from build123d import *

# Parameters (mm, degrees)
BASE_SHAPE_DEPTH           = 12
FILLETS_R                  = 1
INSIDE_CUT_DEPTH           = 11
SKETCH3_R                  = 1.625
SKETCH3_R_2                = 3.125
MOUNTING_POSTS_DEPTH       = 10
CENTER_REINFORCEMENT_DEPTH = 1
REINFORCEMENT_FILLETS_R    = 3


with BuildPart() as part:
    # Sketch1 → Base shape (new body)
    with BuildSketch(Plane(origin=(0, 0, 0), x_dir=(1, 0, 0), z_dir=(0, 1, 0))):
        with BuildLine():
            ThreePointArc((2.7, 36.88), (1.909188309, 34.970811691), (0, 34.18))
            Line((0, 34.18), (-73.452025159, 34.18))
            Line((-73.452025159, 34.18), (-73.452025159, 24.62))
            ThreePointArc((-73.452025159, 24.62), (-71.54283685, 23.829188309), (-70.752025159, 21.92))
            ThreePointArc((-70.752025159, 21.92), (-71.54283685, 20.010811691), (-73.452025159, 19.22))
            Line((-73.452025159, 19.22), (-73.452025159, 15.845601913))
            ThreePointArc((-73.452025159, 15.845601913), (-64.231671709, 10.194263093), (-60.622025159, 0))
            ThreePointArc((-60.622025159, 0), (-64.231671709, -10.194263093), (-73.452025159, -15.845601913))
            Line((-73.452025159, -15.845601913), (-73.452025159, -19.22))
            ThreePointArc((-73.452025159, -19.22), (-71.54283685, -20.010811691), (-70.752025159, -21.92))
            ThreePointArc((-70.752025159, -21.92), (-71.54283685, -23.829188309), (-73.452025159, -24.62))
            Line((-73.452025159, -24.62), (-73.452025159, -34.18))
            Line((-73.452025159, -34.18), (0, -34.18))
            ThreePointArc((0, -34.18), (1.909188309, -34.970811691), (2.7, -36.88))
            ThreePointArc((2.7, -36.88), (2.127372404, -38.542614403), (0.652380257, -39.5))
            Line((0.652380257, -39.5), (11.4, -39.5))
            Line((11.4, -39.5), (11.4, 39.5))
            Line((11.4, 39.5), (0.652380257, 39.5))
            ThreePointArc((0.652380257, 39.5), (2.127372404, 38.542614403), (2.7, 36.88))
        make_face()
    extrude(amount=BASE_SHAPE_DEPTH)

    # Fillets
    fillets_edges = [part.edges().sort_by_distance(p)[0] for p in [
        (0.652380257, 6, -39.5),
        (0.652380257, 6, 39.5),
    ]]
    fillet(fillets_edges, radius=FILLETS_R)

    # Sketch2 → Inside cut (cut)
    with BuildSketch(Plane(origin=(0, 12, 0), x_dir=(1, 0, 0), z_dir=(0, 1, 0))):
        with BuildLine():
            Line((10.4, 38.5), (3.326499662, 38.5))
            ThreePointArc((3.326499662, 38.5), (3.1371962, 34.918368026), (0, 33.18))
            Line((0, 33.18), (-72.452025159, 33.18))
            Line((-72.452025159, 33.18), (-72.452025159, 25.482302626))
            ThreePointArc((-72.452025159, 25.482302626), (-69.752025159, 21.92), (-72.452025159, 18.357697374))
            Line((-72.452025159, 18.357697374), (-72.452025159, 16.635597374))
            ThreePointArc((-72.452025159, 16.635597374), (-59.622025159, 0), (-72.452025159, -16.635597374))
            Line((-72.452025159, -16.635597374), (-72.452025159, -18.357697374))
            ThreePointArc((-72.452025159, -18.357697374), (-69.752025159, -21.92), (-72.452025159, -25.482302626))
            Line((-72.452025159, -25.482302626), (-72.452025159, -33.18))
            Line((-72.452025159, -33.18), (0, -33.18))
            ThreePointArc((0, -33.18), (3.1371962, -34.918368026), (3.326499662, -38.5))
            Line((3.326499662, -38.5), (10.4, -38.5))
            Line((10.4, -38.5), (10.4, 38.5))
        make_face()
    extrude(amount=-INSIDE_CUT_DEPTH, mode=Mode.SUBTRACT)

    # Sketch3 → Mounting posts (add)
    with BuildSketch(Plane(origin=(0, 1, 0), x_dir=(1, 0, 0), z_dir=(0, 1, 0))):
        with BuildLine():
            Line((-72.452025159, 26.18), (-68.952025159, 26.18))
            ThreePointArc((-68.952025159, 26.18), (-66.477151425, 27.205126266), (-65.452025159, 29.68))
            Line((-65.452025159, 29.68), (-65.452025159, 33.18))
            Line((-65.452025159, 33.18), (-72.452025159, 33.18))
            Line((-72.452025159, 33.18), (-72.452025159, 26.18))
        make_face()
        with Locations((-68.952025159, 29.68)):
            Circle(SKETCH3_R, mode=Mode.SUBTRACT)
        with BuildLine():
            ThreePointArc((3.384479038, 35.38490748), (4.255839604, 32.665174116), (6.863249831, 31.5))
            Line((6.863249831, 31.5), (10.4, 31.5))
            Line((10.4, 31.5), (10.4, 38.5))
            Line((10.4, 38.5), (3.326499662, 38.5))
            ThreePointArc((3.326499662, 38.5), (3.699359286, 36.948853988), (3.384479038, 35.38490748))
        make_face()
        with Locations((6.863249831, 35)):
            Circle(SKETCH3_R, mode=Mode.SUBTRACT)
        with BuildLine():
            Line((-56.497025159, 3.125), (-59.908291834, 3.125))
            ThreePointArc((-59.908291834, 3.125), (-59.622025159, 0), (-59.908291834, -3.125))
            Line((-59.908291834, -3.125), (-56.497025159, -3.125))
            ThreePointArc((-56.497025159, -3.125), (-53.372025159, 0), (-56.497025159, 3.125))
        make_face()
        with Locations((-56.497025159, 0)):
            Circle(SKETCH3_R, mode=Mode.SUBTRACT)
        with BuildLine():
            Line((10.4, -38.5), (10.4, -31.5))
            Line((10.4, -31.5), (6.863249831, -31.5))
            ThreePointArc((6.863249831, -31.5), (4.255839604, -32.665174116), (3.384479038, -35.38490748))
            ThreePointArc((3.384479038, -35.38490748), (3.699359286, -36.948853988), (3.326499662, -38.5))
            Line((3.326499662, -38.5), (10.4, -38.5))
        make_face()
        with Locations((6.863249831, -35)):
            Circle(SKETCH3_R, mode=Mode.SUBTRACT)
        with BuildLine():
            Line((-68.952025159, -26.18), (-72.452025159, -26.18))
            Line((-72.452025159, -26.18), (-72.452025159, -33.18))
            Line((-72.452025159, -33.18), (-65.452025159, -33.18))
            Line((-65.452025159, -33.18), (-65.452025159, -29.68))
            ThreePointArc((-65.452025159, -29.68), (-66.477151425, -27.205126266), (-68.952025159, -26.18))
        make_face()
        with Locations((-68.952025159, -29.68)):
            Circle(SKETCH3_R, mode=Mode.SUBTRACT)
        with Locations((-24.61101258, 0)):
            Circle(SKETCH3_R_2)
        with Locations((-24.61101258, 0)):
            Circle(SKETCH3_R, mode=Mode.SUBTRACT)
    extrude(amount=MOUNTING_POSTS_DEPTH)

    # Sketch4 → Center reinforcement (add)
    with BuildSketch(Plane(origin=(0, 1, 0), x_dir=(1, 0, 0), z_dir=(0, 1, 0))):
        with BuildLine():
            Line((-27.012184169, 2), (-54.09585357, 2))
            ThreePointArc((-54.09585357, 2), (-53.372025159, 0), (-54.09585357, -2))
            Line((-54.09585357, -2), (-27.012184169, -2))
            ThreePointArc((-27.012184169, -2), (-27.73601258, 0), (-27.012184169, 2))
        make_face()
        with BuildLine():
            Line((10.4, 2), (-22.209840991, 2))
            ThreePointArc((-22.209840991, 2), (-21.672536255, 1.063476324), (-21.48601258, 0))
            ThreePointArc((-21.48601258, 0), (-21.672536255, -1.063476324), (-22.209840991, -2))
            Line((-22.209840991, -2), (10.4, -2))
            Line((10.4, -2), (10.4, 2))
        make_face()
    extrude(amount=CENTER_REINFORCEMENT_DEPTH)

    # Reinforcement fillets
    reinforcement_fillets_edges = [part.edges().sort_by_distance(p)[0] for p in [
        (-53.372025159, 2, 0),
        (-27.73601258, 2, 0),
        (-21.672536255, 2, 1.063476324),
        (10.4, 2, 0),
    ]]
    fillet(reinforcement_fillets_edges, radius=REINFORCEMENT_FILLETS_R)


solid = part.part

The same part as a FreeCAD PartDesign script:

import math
import FreeCAD as App
import Part
import Sketcher
from FreeCAD import Vector


def edges_at(feature, points):
    """Names of the edges that pass closest to the given points."""
    edges = feature.Shape.Edges
    near = lambda p: min(range(len(edges)), key=lambda i: edges[i].distToShape(Part.Vertex(*p))[0])
    return sorted({f"Edge{near(p) + 1}" for p in points})

doc = App.newDocument("Part")
params = doc.addObject("Spreadsheet::Sheet", "Params")
for row, (alias, value) in enumerate([
    ("sketch1_radius", "2.7 mm"),
    ("sketch1_radius2", "16.2 mm"),
    ("sketch1_height", "79 mm"),
    ("sketch1_height2", "9.56 mm"),
    ("pad1_length", "12 mm"),
    ("fillet_radius", "1 mm"),
    ("sketch2_radius", "3.7 mm"),
    ("sketch2_radius2", "17.2 mm"),
    ("sketch2_height", "77 mm"),
    ("pocket1_length", "11 mm"),
    ("sketch3_radius", "3.5 mm"),
    ("sketch3_radius2", "3.7 mm"),
    ("sketch3_radius3", "17.2 mm"),
    ("sketch3_diameter", "3.25 mm"),
    ("sketch3_diameter2", "6.25 mm"),
    ("pad2_length", "10 mm"),
    ("sketch4_height", "4 mm"),
    ("pad3_length", "1 mm"),
    ("fillet2_radius", "3 mm"),
], start=1):
    params.set(f"A{row}", alias)
    params.set(f"B{row}", "=" + value)
    params.setAlias(f"B{row}", alias)

body = doc.addObject("PartDesign::Body", "Body")

sketch1 = body.newObject("Sketcher::SketchObject", "Sketch")
sketch1.AttachmentSupport = (doc.getObject("XZ_Plane"), [""])
sketch1.MapMode = "FlatFace"
sketch1.addGeometry(Part.ArcOfCircle(Part.Circle(Vector(0, -36.9, 0), Vector(0, 0, 1), 2.7), math.radians(0), math.radians(90)), False)
sketch1.addGeometry(Part.LineSegment(Vector(0, -34.2, 0), Vector(-73.5, -34.2, 0)), False)
sketch1.addGeometry(Part.LineSegment(Vector(-73.5, -34.2, 0), Vector(-73.5, -24.6, 0)), False)
sketch1.addGeometry(Part.ArcOfCircle(Part.Circle(Vector(-73.5, -21.9, 0), Vector(0, 0, 1), 2.7), math.radians(-90), math.radians(0)), False)
sketch1.addGeometry(Part.ArcOfCircle(Part.Circle(Vector(-73.5, -21.9, 0), Vector(0, 0, 1), 2.7), math.radians(0), math.radians(90)), False)
sketch1.addGeometry(Part.LineSegment(Vector(-73.5, -19.2, 0), Vector(-73.5, -15.8, 0)), False)
sketch1.addGeometry(Part.ArcOfCircle(Part.Circle(Vector(-76.8, 0, 0), Vector(0, 0, 1), 16.2), math.radians(-78), math.radians(0)), False)
sketch1.addGeometry(Part.ArcOfCircle(Part.Circle(Vector(-76.8, 0, 0), Vector(0, 0, 1), 16.2), math.radians(0), math.radians(78)), False)
sketch1.addGeometry(Part.LineSegment(Vector(-73.5, 15.8, 0), Vector(-73.5, 19.2, 0)), False)
sketch1.addGeometry(Part.ArcOfCircle(Part.Circle(Vector(-73.5, 21.9, 0), Vector(0, 0, 1), 2.7), math.radians(-90), math.radians(0)), False)
sketch1.addGeometry(Part.ArcOfCircle(Part.Circle(Vector(-73.5, 21.9, 0), Vector(0, 0, 1), 2.7), math.radians(0), math.radians(90)), False)
sketch1.addGeometry(Part.LineSegment(Vector(-73.5, 24.6, 0), Vector(-73.5, 34.2, 0)), False)
sketch1.addGeometry(Part.LineSegment(Vector(-73.5, 34.2, 0), Vector(0, 34.2, 0)), False)
sketch1.addGeometry(Part.ArcOfCircle(Part.Circle(Vector(0, 36.9, 0), Vector(0, 0, 1), 2.7), math.radians(-90), math.radians(0)), False)
sketch1.addGeometry(Part.ArcOfCircle(Part.Circle(Vector(0, 36.9, 0), Vector(0, 0, 1), 2.7), math.radians(0), math.radians(76)), False)
sketch1.addGeometry(Part.LineSegment(Vector(0.7, 39.5, 0), Vector(11.4, 39.5, 0)), False)
sketch1.addGeometry(Part.LineSegment(Vector(11.4, 39.5, 0), Vector(11.4, -39.5, 0)), False)
sketch1.addGeometry(Part.LineSegment(Vector(11.4, -39.5, 0), Vector(0.7, -39.5, 0)), False)
sketch1.addGeometry(Part.ArcOfCircle(Part.Circle(Vector(0, -36.9, 0), Vector(0, 0, 1), 2.7), math.radians(-76), math.radians(0)), False)
sketch1.addConstraint(Sketcher.Constraint("Tangent", 0, 2, 1, 1))
sketch1.addConstraint(Sketcher.Constraint("Coincident", 1, 2, 2, 1))
sketch1.addConstraint(Sketcher.Constraint("Coincident", 2, 2, 3, 1))
sketch1.addConstraint(Sketcher.Constraint("Tangent", 3, 2, 4, 1))
sketch1.addConstraint(Sketcher.Constraint("Coincident", 4, 2, 5, 1))
sketch1.addConstraint(Sketcher.Constraint("Coincident", 5, 2, 6, 1))
sketch1.addConstraint(Sketcher.Constraint("Tangent", 6, 2, 7, 1))
sketch1.addConstraint(Sketcher.Constraint("Coincident", 7, 2, 8, 1))
sketch1.addConstraint(Sketcher.Constraint("Coincident", 8, 2, 9, 1))
sketch1.addConstraint(Sketcher.Constraint("Tangent", 9, 2, 10, 1))
sketch1.addConstraint(Sketcher.Constraint("Coincident", 10, 2, 11, 1))
sketch1.addConstraint(Sketcher.Constraint("Coincident", 11, 2, 12, 1))
sketch1.addConstraint(Sketcher.Constraint("Tangent", 12, 2, 13, 1))
sketch1.addConstraint(Sketcher.Constraint("Tangent", 13, 2, 14, 1))
sketch1.addConstraint(Sketcher.Constraint("Coincident", 14, 2, 15, 1))
sketch1.addConstraint(Sketcher.Constraint("Coincident", 15, 2, 16, 1))
sketch1.addConstraint(Sketcher.Constraint("Coincident", 16, 2, 17, 1))
sketch1.addConstraint(Sketcher.Constraint("Coincident", 17, 2, 18, 1))
sketch1.addConstraint(Sketcher.Constraint("Tangent", 18, 2, 0, 1))
sketch1.addConstraint(Sketcher.Constraint("Horizontal", 1))
sketch1.addConstraint(Sketcher.Constraint("Vertical", 2))
sketch1.addConstraint(Sketcher.Constraint("Vertical", 5))
sketch1.addConstraint(Sketcher.Constraint("Vertical", 8))
sketch1.addConstraint(Sketcher.Constraint("Vertical", 11))
sketch1.addConstraint(Sketcher.Constraint("Horizontal", 12))
sketch1.addConstraint(Sketcher.Constraint("Horizontal", 15))
sketch1.addConstraint(Sketcher.Constraint("Vertical", 16))
sketch1.addConstraint(Sketcher.Constraint("Horizontal", 17))
sketch1.addConstraint(Sketcher.Constraint("Equal", 0, 3))
sketch1.addConstraint(Sketcher.Constraint("Equal", 3, 4))
sketch1.addConstraint(Sketcher.Constraint("Equal", 6, 7))
sketch1.addConstraint(Sketcher.Constraint("Equal", 4, 9))
sketch1.addConstraint(Sketcher.Constraint("Equal", 9, 10))
sketch1.addConstraint(Sketcher.Constraint("Equal", 10, 13))
sketch1.addConstraint(Sketcher.Constraint("Equal", 13, 14))
sketch1.addConstraint(Sketcher.Constraint("Equal", 14, 18))
sketch1.addConstraint(Sketcher.Constraint("Symmetric", 0, 3, 13, 3, -1, 1))
sketch1.addConstraint(Sketcher.Constraint("Symmetric", 3, 3, 9, 3, -1))
sketch1.addConstraint(Sketcher.Constraint("Symmetric", 5, 2, 7, 2, -1))
sketch1.addConstraint(Sketcher.Constraint("Symmetric", 14, 2, 17, 2, -1))
sketch1.addConstraint(Sketcher.Constraint("PointOnObject", 6, 2, -1))
sketch1.addConstraint(Sketcher.Constraint("Horizontal", 4, 3, 3, 2))
sketch1.addConstraint(Sketcher.Constraint("Horizontal", 10, 3, 9, 2))
sketch1.addConstraint(Sketcher.Constraint("Horizontal", 14, 3, 13, 2))
sketch1.addConstraint(Sketcher.Constraint("Horizontal", 0, 3, 18, 2))
sketch1.addConstraint(Sketcher.Constraint("Vertical", 10, 3, 1, 2))
sketch1.addConstraint(Sketcher.Constraint("Vertical", 2, 2, 4, 2))
sketch1.addConstraint(Sketcher.Constraint("Vertical", 8, 2, 10, 2))
sketch1.addConstraint(Sketcher.Constraint("Radius", 0, 2.7))
sketch1.addConstraint(Sketcher.Constraint("Radius", 6, 16.2))
sketch1.addConstraint(Sketcher.Constraint("DistanceY", 16, 2, 16, 1, 79.0))
sketch1.addConstraint(Sketcher.Constraint("DistanceY", 2, 1, 2, 2, 9.56))
sketch1.addConstraint(Sketcher.Constraint("DistanceX", -1, 1, 15, 2, 11.4))
sketch1.addConstraint(Sketcher.Constraint("DistanceY", 0, 3, 9, 3, 58.8))
sketch1.addConstraint(Sketcher.Constraint("DistanceX", 6, 3, 3, 3, 3.37))
sketch1.addConstraint(Sketcher.Constraint("DistanceX", 1, 2, 1, 1, 73.452025))
sketch1.setExpression("Constraints[48]", "Params.sketch1_radius")
sketch1.setExpression("Constraints[49]", "Params.sketch1_radius2")
sketch1.setExpression("Constraints[50]", "Params.sketch1_height")
sketch1.setExpression("Constraints[51]", "Params.sketch1_height2")
pad1 = body.newObject("PartDesign::Pad", "Pad")
pad1.Profile = sketch1
pad1.setExpression("Length", "Params.pad1_length")
pad1.Reversed = True
doc.recompute()

fillet = body.newObject("PartDesign::Fillet", "Fillet")
fillet.Base = (pad1, edges_at(pad1, [(0.652, 6, -39.5), (0.652, 6, 39.5)]))
fillet.setExpression("Radius", "Params.fillet_radius")

sketch2 = body.newObject("Sketcher::SketchObject", "Sketch001")
sketch2.AttachmentSupport = (doc.getObject("XZ_Plane"), [""])
sketch2.MapMode = "FlatFace"
sketch2.AttachmentOffset = App.Placement(Vector(0, 0, -12), App.Rotation())
sketch2.addGeometry(Part.LineSegment(Vector(10.4, -38.5, 0), Vector(3.3, -38.5, 0)), False)
sketch2.addGeometry(Part.ArcOfCircle(Part.Circle(Vector(0, -36.9, 0), Vector(0, 0, 1), 3.7), math.radians(-26), math.radians(90)), False)
sketch2.addGeometry(Part.LineSegment(Vector(0, -33.2, 0), Vector(-72.5, -33.2, 0)), False)
sketch2.addGeometry(Part.LineSegment(Vector(-72.5, -33.2, 0), Vector(-72.5, -25.5, 0)), False)
sketch2.addGeometry(Part.ArcOfCircle(Part.Circle(Vector(-73.5, -21.9, 0), Vector(0, 0, 1), 3.7), math.radians(-74), math.radians(74)), False)
sketch2.addGeometry(Part.LineSegment(Vector(-72.5, -18.4, 0), Vector(-72.5, -16.6, 0)), False)
sketch2.addGeometry(Part.ArcOfCircle(Part.Circle(Vector(-76.8, 0, 0), Vector(0, 0, 1), 17.2), math.radians(-75), math.radians(75)), False)
sketch2.addGeometry(Part.LineSegment(Vector(-72.5, 16.6, 0), Vector(-72.5, 18.4, 0)), False)
sketch2.addGeometry(Part.ArcOfCircle(Part.Circle(Vector(-73.5, 21.9, 0), Vector(0, 0, 1), 3.7), math.radians(-74), math.radians(74)), False)
sketch2.addGeometry(Part.LineSegment(Vector(-72.5, 25.5, 0), Vector(-72.5, 33.2, 0)), False)
sketch2.addGeometry(Part.LineSegment(Vector(-72.5, 33.2, 0), Vector(0, 33.2, 0)), False)
sketch2.addGeometry(Part.ArcOfCircle(Part.Circle(Vector(0, 36.9, 0), Vector(0, 0, 1), 3.7), math.radians(-90), math.radians(26)), False)
sketch2.addGeometry(Part.LineSegment(Vector(3.3, 38.5, 0), Vector(10.4, 38.5, 0)), False)
sketch2.addGeometry(Part.LineSegment(Vector(10.4, 38.5, 0), Vector(10.4, -38.5, 0)), False)
sketch2.addConstraint(Sketcher.Constraint("Coincident", 0, 2, 1, 1))
sketch2.addConstraint(Sketcher.Constraint("Tangent", 1, 2, 2, 1))
sketch2.addConstraint(Sketcher.Constraint("Coincident", 2, 2, 3, 1))
sketch2.addConstraint(Sketcher.Constraint("Coincident", 3, 2, 4, 1))
sketch2.addConstraint(Sketcher.Constraint("Coincident", 4, 2, 5, 1))
sketch2.addConstraint(Sketcher.Constraint("Coincident", 5, 2, 6, 1))
sketch2.addConstraint(Sketcher.Constraint("Coincident", 6, 2, 7, 1))
sketch2.addConstraint(Sketcher.Constraint("Coincident", 7, 2, 8, 1))
sketch2.addConstraint(Sketcher.Constraint("Coincident", 8, 2, 9, 1))
sketch2.addConstraint(Sketcher.Constraint("Coincident", 9, 2, 10, 1))
sketch2.addConstraint(Sketcher.Constraint("Tangent", 10, 2, 11, 1))
sketch2.addConstraint(Sketcher.Constraint("Coincident", 11, 2, 12, 1))
sketch2.addConstraint(Sketcher.Constraint("Coincident", 12, 2, 13, 1))
sketch2.addConstraint(Sketcher.Constraint("Coincident", 13, 2, 0, 1))
sketch2.addConstraint(Sketcher.Constraint("Horizontal", 0))
sketch2.addConstraint(Sketcher.Constraint("Horizontal", 2))
sketch2.addConstraint(Sketcher.Constraint("Vertical", 3))
sketch2.addConstraint(Sketcher.Constraint("Vertical", 5))
sketch2.addConstraint(Sketcher.Constraint("Vertical", 7))
sketch2.addConstraint(Sketcher.Constraint("Vertical", 9))
sketch2.addConstraint(Sketcher.Constraint("Horizontal", 10))
sketch2.addConstraint(Sketcher.Constraint("Horizontal", 12))
sketch2.addConstraint(Sketcher.Constraint("Vertical", 13))
sketch2.addConstraint(Sketcher.Constraint("Equal", 1, 4))
sketch2.addConstraint(Sketcher.Constraint("Equal", 4, 8))
sketch2.addConstraint(Sketcher.Constraint("Equal", 8, 11))
sketch2.addConstraint(Sketcher.Constraint("Symmetric", 1, 3, 11, 3, -1, 1))
sketch2.addConstraint(Sketcher.Constraint("Symmetric", 4, 3, 8, 3, -1))
sketch2.addConstraint(Sketcher.Constraint("Symmetric", 5, 2, 6, 2, -1))
sketch2.addConstraint(Sketcher.Constraint("Symmetric", 0, 2, 11, 2, -1))
sketch2.addConstraint(Sketcher.Constraint("Vertical", 3, 2, 4, 2))
sketch2.addConstraint(Sketcher.Constraint("Vertical", 7, 2, 8, 2))
sketch2.addConstraint(Sketcher.Constraint("Radius", 1, 3.7))
sketch2.addConstraint(Sketcher.Constraint("Radius", 6, 17.2))
sketch2.addConstraint(Sketcher.Constraint("DistanceY", 13, 2, 13, 1, 77.0))
sketch2.addConstraint(Sketcher.Constraint("DistanceX", 4, 3, 2, 2, 1.0))
sketch2.addConstraint(Sketcher.Constraint("DistanceX", -1, 1, 12, 2, 10.4))
sketch2.addConstraint(Sketcher.Constraint("DistanceY", 1, 3, 8, 3, 58.8))
sketch2.addConstraint(Sketcher.Constraint("DistanceY", 1, 3, -1, 1, 36.88))
sketch2.addConstraint(Sketcher.Constraint("DistanceX", 6, 3, 4, 3, 3.37))
sketch2.addConstraint(Sketcher.Constraint("DistanceX", 2, 2, 2, 1, 72.452025))
sketch2.setExpression("Constraints[32]", "Params.sketch2_radius")
sketch2.setExpression("Constraints[33]", "Params.sketch2_radius2")
sketch2.setExpression("Constraints[34]", "Params.sketch2_height")
pocket1 = body.newObject("PartDesign::Pocket", "Pocket")
pocket1.Profile = sketch2
pocket1.setExpression("Length", "Params.pocket1_length")
pocket1.Reversed = True

sketch3 = body.newObject("Sketcher::SketchObject", "Sketch002")
sketch3.AttachmentSupport = (doc.getObject("XZ_Plane"), [""])
sketch3.MapMode = "FlatFace"
sketch3.AttachmentOffset = App.Placement(Vector(0, 0, -1), App.Rotation())
sketch3.addGeometry(Part.LineSegment(Vector(-72.5, -26.2, 0), Vector(-69, -26.2, 0)), False)
sketch3.addGeometry(Part.ArcOfCircle(Part.Circle(Vector(-69, -29.7, 0), Vector(0, 0, 1), 3.5), math.radians(0), math.radians(90)), False)
sketch3.addGeometry(Part.LineSegment(Vector(-65.5, -29.7, 0), Vector(-65.5, -33.2, 0)), False)
sketch3.addGeometry(Part.LineSegment(Vector(-65.5, -33.2, 0), Vector(-72.5, -33.2, 0)), False)
sketch3.addGeometry(Part.LineSegment(Vector(-72.5, -33.2, 0), Vector(-72.5, -26.2, 0)), False)
sketch3.addGeometry(Part.Circle(Vector(-69, -29.7, 0), Vector(0, 0, 1), 1.6), False)
sketch3.addGeometry(Part.ArcOfCircle(Part.Circle(Vector(6.9, -35, 0), Vector(0, 0, 1), 3.5), math.radians(90), math.radians(186)), False)
sketch3.addGeometry(Part.LineSegment(Vector(6.9, -31.5, 0), Vector(10.4, -31.5, 0)), False)
sketch3.addGeometry(Part.LineSegment(Vector(10.4, -31.5, 0), Vector(10.4, -38.5, 0)), False)
sketch3.addGeometry(Part.LineSegment(Vector(10.4, -38.5, 0), Vector(3.3, -38.5, 0)), False)
sketch3.addGeometry(Part.ArcOfCircle(Part.Circle(Vector(0, -36.9, 0), Vector(0, 0, 1), 3.7), math.radians(-26), math.radians(24)), False)
sketch3.addGeometry(Part.Circle(Vector(6.9, -35, 0), Vector(0, 0, 1), 1.6), False)
sketch3.addGeometry(Part.LineSegment(Vector(-56.5, -3.1, 0), Vector(-59.9, -3.1, 0)), False)
sketch3.addGeometry(Part.ArcOfCircle(Part.Circle(Vector(-76.8, 0, 0), Vector(0, 0, 1), 17.2), math.radians(-10), math.radians(10)), False)
sketch3.addGeometry(Part.LineSegment(Vector(-59.9, 3.1, 0), Vector(-56.5, 3.1, 0)), False)
sketch3.addGeometry(Part.ArcOfCircle(Part.Circle(Vector(-56.5, 0, 0), Vector(0, 0, 1), 3.1), math.radians(-90), math.radians(90)), False)
sketch3.addGeometry(Part.Circle(Vector(-56.5, 0, 0), Vector(0, 0, 1), 1.6), False)
sketch3.addGeometry(Part.LineSegment(Vector(10.4, 38.5, 0), Vector(10.4, 31.5, 0)), False)
sketch3.addGeometry(Part.LineSegment(Vector(10.4, 31.5, 0), Vector(6.9, 31.5, 0)), False)
sketch3.addGeometry(Part.ArcOfCircle(Part.Circle(Vector(6.9, 35, 0), Vector(0, 0, 1), 3.5), math.radians(174), math.radians(270)), False)
sketch3.addGeometry(Part.ArcOfCircle(Part.Circle(Vector(0, 36.9, 0), Vector(0, 0, 1), 3.7), math.radians(-24), math.radians(26)), False)
sketch3.addGeometry(Part.LineSegment(Vector(3.3, 38.5, 0), Vector(10.4, 38.5, 0)), False)
sketch3.addGeometry(Part.Circle(Vector(6.9, 35, 0), Vector(0, 0, 1), 1.6), False)
sketch3.addGeometry(Part.LineSegment(Vector(-69, 26.2, 0), Vector(-72.5, 26.2, 0)), False)
sketch3.addGeometry(Part.LineSegment(Vector(-72.5, 26.2, 0), Vector(-72.5, 33.2, 0)), False)
sketch3.addGeometry(Part.LineSegment(Vector(-72.5, 33.2, 0), Vector(-65.5, 33.2, 0)), False)
sketch3.addGeometry(Part.LineSegment(Vector(-65.5, 33.2, 0), Vector(-65.5, 29.7, 0)), False)
sketch3.addGeometry(Part.ArcOfCircle(Part.Circle(Vector(-69, 29.7, 0), Vector(0, 0, 1), 3.5), math.radians(-90), math.radians(0)), False)
sketch3.addGeometry(Part.Circle(Vector(-69, 29.7, 0), Vector(0, 0, 1), 1.6), False)
sketch3.addGeometry(Part.Circle(Vector(-24.6, 0, 0), Vector(0, 0, 1), 3.1), False)
sketch3.addGeometry(Part.Circle(Vector(-24.6, 0, 0), Vector(0, 0, 1), 1.6), False)
sketch3.addConstraint(Sketcher.Constraint("Tangent", 0, 2, 1, 2))
sketch3.addConstraint(Sketcher.Constraint("Tangent", 1, 1, 2, 1))
sketch3.addConstraint(Sketcher.Constraint("Coincident", 2, 2, 3, 1))
sketch3.addConstraint(Sketcher.Constraint("Coincident", 3, 2, 4, 1))
sketch3.addConstraint(Sketcher.Constraint("Coincident", 4, 2, 0, 1))
sketch3.addConstraint(Sketcher.Constraint("Tangent", 6, 1, 7, 1))
sketch3.addConstraint(Sketcher.Constraint("Coincident", 7, 2, 8, 1))
sketch3.addConstraint(Sketcher.Constraint("Coincident", 8, 2, 9, 1))
sketch3.addConstraint(Sketcher.Constraint("Coincident", 9, 2, 10, 1))
sketch3.addConstraint(Sketcher.Constraint("Coincident", 10, 2, 6, 2))
sketch3.addConstraint(Sketcher.Constraint("Coincident", 12, 2, 13, 1))
sketch3.addConstraint(Sketcher.Constraint("Coincident", 13, 2, 14, 1))
sketch3.addConstraint(Sketcher.Constraint("Tangent", 14, 2, 15, 2))
sketch3.addConstraint(Sketcher.Constraint("Tangent", 15, 1, 12, 1))
sketch3.addConstraint(Sketcher.Constraint("Coincident", 17, 2, 18, 1))
sketch3.addConstraint(Sketcher.Constraint("Tangent", 18, 2, 19, 2))
sketch3.addConstraint(Sketcher.Constraint("Coincident", 19, 1, 20, 1))
sketch3.addConstraint(Sketcher.Constraint("Coincident", 20, 2, 21, 1))
sketch3.addConstraint(Sketcher.Constraint("Coincident", 21, 2, 17, 1))
sketch3.addConstraint(Sketcher.Constraint("Coincident", 23, 2, 24, 1))
sketch3.addConstraint(Sketcher.Constraint("Coincident", 24, 2, 25, 1))
sketch3.addConstraint(Sketcher.Constraint("Coincident", 25, 2, 26, 1))
sketch3.addConstraint(Sketcher.Constraint("Tangent", 26, 2, 27, 2))
sketch3.addConstraint(Sketcher.Constraint("Tangent", 27, 1, 23, 1))
sketch3.addConstraint(Sketcher.Constraint("Horizontal", 0))
sketch3.addConstraint(Sketcher.Constraint("Vertical", 2))
sketch3.addConstraint(Sketcher.Constraint("Horizontal", 3))
sketch3.addConstraint(Sketcher.Constraint("Vertical", 4))
sketch3.addConstraint(Sketcher.Constraint("Horizontal", 7))
sketch3.addConstraint(Sketcher.Constraint("Vertical", 8))
sketch3.addConstraint(Sketcher.Constraint("Horizontal", 9))
sketch3.addConstraint(Sketcher.Constraint("Horizontal", 12))
sketch3.addConstraint(Sketcher.Constraint("Horizontal", 14))
sketch3.addConstraint(Sketcher.Constraint("Vertical", 17))
sketch3.addConstraint(Sketcher.Constraint("Horizontal", 18))
sketch3.addConstraint(Sketcher.Constraint("Horizontal", 21))
sketch3.addConstraint(Sketcher.Constraint("Horizontal", 23))
sketch3.addConstraint(Sketcher.Constraint("Vertical", 24))
sketch3.addConstraint(Sketcher.Constraint("Horizontal", 25))
sketch3.addConstraint(Sketcher.Constraint("Vertical", 26))
sketch3.addConstraint(Sketcher.Constraint("Coincident", 5, 3, 1, 3))
sketch3.addConstraint(Sketcher.Constraint("Coincident", 11, 3, 6, 3))
sketch3.addConstraint(Sketcher.Constraint("Coincident", 16, 3, 15, 3))
sketch3.addConstraint(Sketcher.Constraint("Coincident", 22, 3, 19, 3))
sketch3.addConstraint(Sketcher.Constraint("Coincident", 28, 3, 27, 3))
sketch3.addConstraint(Sketcher.Constraint("Coincident", 30, 3, 29, 3))
sketch3.addConstraint(Sketcher.Constraint("Equal", 1, 6))
sketch3.addConstraint(Sketcher.Constraint("Equal", 5, 11))
sketch3.addConstraint(Sketcher.Constraint("Equal", 11, 16))
sketch3.addConstraint(Sketcher.Constraint("Equal", 6, 19))
sketch3.addConstraint(Sketcher.Constraint("Equal", 10, 20))
sketch3.addConstraint(Sketcher.Constraint("Equal", 16, 22))
sketch3.addConstraint(Sketcher.Constraint("Equal", 19, 27))
sketch3.addConstraint(Sketcher.Constraint("Equal", 22, 28))
sketch3.addConstraint(Sketcher.Constraint("Equal", 15, 29))
sketch3.addConstraint(Sketcher.Constraint("Equal", 28, 30))
sketch3.addConstraint(Sketcher.Constraint("Symmetric", 10, 3, 20, 3, -1, 1))
sketch3.addConstraint(Sketcher.Constraint("Symmetric", 6, 3, 19, 3, -1))
sketch3.addConstraint(Sketcher.Constraint("Symmetric", 1, 3, 27, 3, -1))
sketch3.addConstraint(Sketcher.Constraint("Symmetric", 12, 2, 13, 2, -1))
sketch3.addConstraint(Sketcher.Constraint("Symmetric", 9, 2, 20, 2, -1))
sketch3.addConstraint(Sketcher.Constraint("Symmetric", 3, 2, 24, 2, -1))
sketch3.addConstraint(Sketcher.Constraint("PointOnObject", 29, 3, -1))
sketch3.addConstraint(Sketcher.Constraint("Vertical", 8, 2, 17, 2))
sketch3.addConstraint(Sketcher.Constraint("Equal", 23, 2))
sketch3.addConstraint(Sketcher.Constraint("Equal", 4, 8))
sketch3.addConstraint(Sketcher.Constraint("Radius", 1, 3.5))
sketch3.addConstraint(Sketcher.Constraint("Radius", 10, 3.7))
sketch3.addConstraint(Sketcher.Constraint("Radius", 13, 17.2))
sketch3.addConstraint(Sketcher.Constraint("Diameter", 5, 3.25))
sketch3.addConstraint(Sketcher.Constraint("Diameter", 29, 6.25))
sketch3.addConstraint(Sketcher.Constraint("DistanceX", 3, 2, 3, 1, 7.0))
sketch3.addConstraint(Sketcher.Constraint("DistanceY", 6, 3, -1, 1, 35.0))
sketch3.addConstraint(Sketcher.Constraint("DistanceX", -1, 1, 7, 2, 10.4))
sketch3.addConstraint(Sketcher.Constraint("DistanceY", 10, 3, 5, 3, 7.2))
sketch3.addConstraint(Sketcher.Constraint("DistanceY", 1, 3, -1, 1, 29.68))
sketch3.addConstraint(Sketcher.Constraint("DistanceX", 13, 3, 5, 3, 7.87))
sketch3.addConstraint(Sketcher.Constraint("DistanceX", 13, 3, 15, 3, 20.325))
sketch3.addConstraint(Sketcher.Constraint("DistanceX", 7, 1, 7, 2, 3.53675))
sketch3.addConstraint(Sketcher.Constraint("DistanceX", 12, 2, -1, 1, 59.908292))
sketch3.addConstraint(Sketcher.Constraint("DistanceX", 29, 3, -1, 1, 24.611013))
sketch3.setExpression("Constraints[66]", "Params.sketch3_radius")
sketch3.setExpression("Constraints[67]", "Params.sketch3_radius2")
sketch3.setExpression("Constraints[68]", "Params.sketch3_radius3")
sketch3.setExpression("Constraints[69]", "Params.sketch3_diameter")
sketch3.setExpression("Constraints[70]", "Params.sketch3_diameter2")
pad2 = body.newObject("PartDesign::Pad", "Pad001")
pad2.Profile = sketch3
pad2.setExpression("Length", "Params.pad2_length")
pad2.Reversed = True

sketch4 = body.newObject("Sketcher::SketchObject", "Sketch003")
sketch4.AttachmentSupport = (doc.getObject("XZ_Plane"), [""])
sketch4.MapMode = "FlatFace"
sketch4.AttachmentOffset = App.Placement(Vector(0, 0, -1), App.Rotation())
sketch4.addGeometry(Part.LineSegment(Vector(-27, -2, 0), Vector(-54.1, -2, 0)), False)
sketch4.addGeometry(Part.ArcOfCircle(Part.Circle(Vector(-56.5, 0, 0), Vector(0, 0, 1), 3.1), math.radians(-40), math.radians(40)), False)
sketch4.addGeometry(Part.LineSegment(Vector(-54.1, 2, 0), Vector(-27, 2, 0)), False)
sketch4.addGeometry(Part.ArcOfCircle(Part.Circle(Vector(-24.6, 0, 0), Vector(0, 0, 1), 3.1), math.radians(140), math.radians(220)), False)
sketch4.addGeometry(Part.LineSegment(Vector(10.4, -2, 0), Vector(-22.2, -2, 0)), False)
sketch4.addGeometry(Part.ArcOfCircle(Part.Circle(Vector(-24.6, 0, 0), Vector(0, 0, 1), 3.1), math.radians(-40), math.radians(0)), False)
sketch4.addGeometry(Part.ArcOfCircle(Part.Circle(Vector(-24.6, 0, 0), Vector(0, 0, 1), 3.1), math.radians(0), math.radians(40)), False)
sketch4.addGeometry(Part.LineSegment(Vector(-22.2, 2, 0), Vector(10.4, 2, 0)), False)
sketch4.addGeometry(Part.LineSegment(Vector(10.4, 2, 0), Vector(10.4, -2, 0)), False)
sketch4.addConstraint(Sketcher.Constraint("Coincident", 0, 2, 1, 1))
sketch4.addConstraint(Sketcher.Constraint("Coincident", 1, 2, 2, 1))
sketch4.addConstraint(Sketcher.Constraint("Coincident", 2, 2, 3, 1))
sketch4.addConstraint(Sketcher.Constraint("Coincident", 3, 2, 0, 1))
sketch4.addConstraint(Sketcher.Constraint("Coincident", 4, 2, 5, 1))
sketch4.addConstraint(Sketcher.Constraint("Tangent", 5, 2, 6, 1))
sketch4.addConstraint(Sketcher.Constraint("Coincident", 6, 2, 7, 1))
sketch4.addConstraint(Sketcher.Constraint("Coincident", 7, 2, 8, 1))
sketch4.addConstraint(Sketcher.Constraint("Coincident", 8, 2, 4, 1))
sketch4.addConstraint(Sketcher.Constraint("Horizontal", 0))
sketch4.addConstraint(Sketcher.Constraint("Horizontal", 2))
sketch4.addConstraint(Sketcher.Constraint("Horizontal", 4))
sketch4.addConstraint(Sketcher.Constraint("Horizontal", 7))
sketch4.addConstraint(Sketcher.Constraint("Vertical", 8))
sketch4.addConstraint(Sketcher.Constraint("Coincident", 5, 3, 3, 3))
sketch4.addConstraint(Sketcher.Constraint("Equal", 1, 3))
sketch4.addConstraint(Sketcher.Constraint("Equal", 3, 5))
sketch4.addConstraint(Sketcher.Constraint("Equal", 5, 6))
sketch4.addConstraint(Sketcher.Constraint("Symmetric", 0, 2, 1, 2, -1))
sketch4.addConstraint(Sketcher.Constraint("Symmetric", 4, 2, 6, 2, -1))
sketch4.addConstraint(Sketcher.Constraint("PointOnObject", 5, 2, -1))
sketch4.addConstraint(Sketcher.Constraint("Horizontal", 3, 2, 4, 2))
sketch4.addConstraint(Sketcher.Constraint("DistanceY", 8, 2, 8, 1, 4.0))
sketch4.addConstraint(Sketcher.Constraint("Radius", 1, 3.125))
sketch4.addConstraint(Sketcher.Constraint("DistanceX", -1, 1, 7, 2, 10.4))
sketch4.addConstraint(Sketcher.Constraint("DistanceX", 0, 2, 0, 1, 27.083669))
sketch4.addConstraint(Sketcher.Constraint("DistanceX", 4, 2, 4, 1, 32.609841))
sketch4.setExpression("Constraints[22]", "Params.sketch4_height")
pad3 = body.newObject("PartDesign::Pad", "Pad002")
pad3.Profile = sketch4
pad3.setExpression("Length", "Params.pad3_length")
pad3.Reversed = True
doc.recompute()

fillet2 = body.newObject("PartDesign::Fillet", "Fillet001")
fillet2.Base = (pad3, edges_at(pad3, [
    (-53.372, 2, 0),
    (-27.736, 2, 0),
    (-21.673, 2, 1.063),
    (10.4, 2, 0),
]))
fillet2.setExpression("Radius", "Params.fillet2_radius")

doc.recompute()
